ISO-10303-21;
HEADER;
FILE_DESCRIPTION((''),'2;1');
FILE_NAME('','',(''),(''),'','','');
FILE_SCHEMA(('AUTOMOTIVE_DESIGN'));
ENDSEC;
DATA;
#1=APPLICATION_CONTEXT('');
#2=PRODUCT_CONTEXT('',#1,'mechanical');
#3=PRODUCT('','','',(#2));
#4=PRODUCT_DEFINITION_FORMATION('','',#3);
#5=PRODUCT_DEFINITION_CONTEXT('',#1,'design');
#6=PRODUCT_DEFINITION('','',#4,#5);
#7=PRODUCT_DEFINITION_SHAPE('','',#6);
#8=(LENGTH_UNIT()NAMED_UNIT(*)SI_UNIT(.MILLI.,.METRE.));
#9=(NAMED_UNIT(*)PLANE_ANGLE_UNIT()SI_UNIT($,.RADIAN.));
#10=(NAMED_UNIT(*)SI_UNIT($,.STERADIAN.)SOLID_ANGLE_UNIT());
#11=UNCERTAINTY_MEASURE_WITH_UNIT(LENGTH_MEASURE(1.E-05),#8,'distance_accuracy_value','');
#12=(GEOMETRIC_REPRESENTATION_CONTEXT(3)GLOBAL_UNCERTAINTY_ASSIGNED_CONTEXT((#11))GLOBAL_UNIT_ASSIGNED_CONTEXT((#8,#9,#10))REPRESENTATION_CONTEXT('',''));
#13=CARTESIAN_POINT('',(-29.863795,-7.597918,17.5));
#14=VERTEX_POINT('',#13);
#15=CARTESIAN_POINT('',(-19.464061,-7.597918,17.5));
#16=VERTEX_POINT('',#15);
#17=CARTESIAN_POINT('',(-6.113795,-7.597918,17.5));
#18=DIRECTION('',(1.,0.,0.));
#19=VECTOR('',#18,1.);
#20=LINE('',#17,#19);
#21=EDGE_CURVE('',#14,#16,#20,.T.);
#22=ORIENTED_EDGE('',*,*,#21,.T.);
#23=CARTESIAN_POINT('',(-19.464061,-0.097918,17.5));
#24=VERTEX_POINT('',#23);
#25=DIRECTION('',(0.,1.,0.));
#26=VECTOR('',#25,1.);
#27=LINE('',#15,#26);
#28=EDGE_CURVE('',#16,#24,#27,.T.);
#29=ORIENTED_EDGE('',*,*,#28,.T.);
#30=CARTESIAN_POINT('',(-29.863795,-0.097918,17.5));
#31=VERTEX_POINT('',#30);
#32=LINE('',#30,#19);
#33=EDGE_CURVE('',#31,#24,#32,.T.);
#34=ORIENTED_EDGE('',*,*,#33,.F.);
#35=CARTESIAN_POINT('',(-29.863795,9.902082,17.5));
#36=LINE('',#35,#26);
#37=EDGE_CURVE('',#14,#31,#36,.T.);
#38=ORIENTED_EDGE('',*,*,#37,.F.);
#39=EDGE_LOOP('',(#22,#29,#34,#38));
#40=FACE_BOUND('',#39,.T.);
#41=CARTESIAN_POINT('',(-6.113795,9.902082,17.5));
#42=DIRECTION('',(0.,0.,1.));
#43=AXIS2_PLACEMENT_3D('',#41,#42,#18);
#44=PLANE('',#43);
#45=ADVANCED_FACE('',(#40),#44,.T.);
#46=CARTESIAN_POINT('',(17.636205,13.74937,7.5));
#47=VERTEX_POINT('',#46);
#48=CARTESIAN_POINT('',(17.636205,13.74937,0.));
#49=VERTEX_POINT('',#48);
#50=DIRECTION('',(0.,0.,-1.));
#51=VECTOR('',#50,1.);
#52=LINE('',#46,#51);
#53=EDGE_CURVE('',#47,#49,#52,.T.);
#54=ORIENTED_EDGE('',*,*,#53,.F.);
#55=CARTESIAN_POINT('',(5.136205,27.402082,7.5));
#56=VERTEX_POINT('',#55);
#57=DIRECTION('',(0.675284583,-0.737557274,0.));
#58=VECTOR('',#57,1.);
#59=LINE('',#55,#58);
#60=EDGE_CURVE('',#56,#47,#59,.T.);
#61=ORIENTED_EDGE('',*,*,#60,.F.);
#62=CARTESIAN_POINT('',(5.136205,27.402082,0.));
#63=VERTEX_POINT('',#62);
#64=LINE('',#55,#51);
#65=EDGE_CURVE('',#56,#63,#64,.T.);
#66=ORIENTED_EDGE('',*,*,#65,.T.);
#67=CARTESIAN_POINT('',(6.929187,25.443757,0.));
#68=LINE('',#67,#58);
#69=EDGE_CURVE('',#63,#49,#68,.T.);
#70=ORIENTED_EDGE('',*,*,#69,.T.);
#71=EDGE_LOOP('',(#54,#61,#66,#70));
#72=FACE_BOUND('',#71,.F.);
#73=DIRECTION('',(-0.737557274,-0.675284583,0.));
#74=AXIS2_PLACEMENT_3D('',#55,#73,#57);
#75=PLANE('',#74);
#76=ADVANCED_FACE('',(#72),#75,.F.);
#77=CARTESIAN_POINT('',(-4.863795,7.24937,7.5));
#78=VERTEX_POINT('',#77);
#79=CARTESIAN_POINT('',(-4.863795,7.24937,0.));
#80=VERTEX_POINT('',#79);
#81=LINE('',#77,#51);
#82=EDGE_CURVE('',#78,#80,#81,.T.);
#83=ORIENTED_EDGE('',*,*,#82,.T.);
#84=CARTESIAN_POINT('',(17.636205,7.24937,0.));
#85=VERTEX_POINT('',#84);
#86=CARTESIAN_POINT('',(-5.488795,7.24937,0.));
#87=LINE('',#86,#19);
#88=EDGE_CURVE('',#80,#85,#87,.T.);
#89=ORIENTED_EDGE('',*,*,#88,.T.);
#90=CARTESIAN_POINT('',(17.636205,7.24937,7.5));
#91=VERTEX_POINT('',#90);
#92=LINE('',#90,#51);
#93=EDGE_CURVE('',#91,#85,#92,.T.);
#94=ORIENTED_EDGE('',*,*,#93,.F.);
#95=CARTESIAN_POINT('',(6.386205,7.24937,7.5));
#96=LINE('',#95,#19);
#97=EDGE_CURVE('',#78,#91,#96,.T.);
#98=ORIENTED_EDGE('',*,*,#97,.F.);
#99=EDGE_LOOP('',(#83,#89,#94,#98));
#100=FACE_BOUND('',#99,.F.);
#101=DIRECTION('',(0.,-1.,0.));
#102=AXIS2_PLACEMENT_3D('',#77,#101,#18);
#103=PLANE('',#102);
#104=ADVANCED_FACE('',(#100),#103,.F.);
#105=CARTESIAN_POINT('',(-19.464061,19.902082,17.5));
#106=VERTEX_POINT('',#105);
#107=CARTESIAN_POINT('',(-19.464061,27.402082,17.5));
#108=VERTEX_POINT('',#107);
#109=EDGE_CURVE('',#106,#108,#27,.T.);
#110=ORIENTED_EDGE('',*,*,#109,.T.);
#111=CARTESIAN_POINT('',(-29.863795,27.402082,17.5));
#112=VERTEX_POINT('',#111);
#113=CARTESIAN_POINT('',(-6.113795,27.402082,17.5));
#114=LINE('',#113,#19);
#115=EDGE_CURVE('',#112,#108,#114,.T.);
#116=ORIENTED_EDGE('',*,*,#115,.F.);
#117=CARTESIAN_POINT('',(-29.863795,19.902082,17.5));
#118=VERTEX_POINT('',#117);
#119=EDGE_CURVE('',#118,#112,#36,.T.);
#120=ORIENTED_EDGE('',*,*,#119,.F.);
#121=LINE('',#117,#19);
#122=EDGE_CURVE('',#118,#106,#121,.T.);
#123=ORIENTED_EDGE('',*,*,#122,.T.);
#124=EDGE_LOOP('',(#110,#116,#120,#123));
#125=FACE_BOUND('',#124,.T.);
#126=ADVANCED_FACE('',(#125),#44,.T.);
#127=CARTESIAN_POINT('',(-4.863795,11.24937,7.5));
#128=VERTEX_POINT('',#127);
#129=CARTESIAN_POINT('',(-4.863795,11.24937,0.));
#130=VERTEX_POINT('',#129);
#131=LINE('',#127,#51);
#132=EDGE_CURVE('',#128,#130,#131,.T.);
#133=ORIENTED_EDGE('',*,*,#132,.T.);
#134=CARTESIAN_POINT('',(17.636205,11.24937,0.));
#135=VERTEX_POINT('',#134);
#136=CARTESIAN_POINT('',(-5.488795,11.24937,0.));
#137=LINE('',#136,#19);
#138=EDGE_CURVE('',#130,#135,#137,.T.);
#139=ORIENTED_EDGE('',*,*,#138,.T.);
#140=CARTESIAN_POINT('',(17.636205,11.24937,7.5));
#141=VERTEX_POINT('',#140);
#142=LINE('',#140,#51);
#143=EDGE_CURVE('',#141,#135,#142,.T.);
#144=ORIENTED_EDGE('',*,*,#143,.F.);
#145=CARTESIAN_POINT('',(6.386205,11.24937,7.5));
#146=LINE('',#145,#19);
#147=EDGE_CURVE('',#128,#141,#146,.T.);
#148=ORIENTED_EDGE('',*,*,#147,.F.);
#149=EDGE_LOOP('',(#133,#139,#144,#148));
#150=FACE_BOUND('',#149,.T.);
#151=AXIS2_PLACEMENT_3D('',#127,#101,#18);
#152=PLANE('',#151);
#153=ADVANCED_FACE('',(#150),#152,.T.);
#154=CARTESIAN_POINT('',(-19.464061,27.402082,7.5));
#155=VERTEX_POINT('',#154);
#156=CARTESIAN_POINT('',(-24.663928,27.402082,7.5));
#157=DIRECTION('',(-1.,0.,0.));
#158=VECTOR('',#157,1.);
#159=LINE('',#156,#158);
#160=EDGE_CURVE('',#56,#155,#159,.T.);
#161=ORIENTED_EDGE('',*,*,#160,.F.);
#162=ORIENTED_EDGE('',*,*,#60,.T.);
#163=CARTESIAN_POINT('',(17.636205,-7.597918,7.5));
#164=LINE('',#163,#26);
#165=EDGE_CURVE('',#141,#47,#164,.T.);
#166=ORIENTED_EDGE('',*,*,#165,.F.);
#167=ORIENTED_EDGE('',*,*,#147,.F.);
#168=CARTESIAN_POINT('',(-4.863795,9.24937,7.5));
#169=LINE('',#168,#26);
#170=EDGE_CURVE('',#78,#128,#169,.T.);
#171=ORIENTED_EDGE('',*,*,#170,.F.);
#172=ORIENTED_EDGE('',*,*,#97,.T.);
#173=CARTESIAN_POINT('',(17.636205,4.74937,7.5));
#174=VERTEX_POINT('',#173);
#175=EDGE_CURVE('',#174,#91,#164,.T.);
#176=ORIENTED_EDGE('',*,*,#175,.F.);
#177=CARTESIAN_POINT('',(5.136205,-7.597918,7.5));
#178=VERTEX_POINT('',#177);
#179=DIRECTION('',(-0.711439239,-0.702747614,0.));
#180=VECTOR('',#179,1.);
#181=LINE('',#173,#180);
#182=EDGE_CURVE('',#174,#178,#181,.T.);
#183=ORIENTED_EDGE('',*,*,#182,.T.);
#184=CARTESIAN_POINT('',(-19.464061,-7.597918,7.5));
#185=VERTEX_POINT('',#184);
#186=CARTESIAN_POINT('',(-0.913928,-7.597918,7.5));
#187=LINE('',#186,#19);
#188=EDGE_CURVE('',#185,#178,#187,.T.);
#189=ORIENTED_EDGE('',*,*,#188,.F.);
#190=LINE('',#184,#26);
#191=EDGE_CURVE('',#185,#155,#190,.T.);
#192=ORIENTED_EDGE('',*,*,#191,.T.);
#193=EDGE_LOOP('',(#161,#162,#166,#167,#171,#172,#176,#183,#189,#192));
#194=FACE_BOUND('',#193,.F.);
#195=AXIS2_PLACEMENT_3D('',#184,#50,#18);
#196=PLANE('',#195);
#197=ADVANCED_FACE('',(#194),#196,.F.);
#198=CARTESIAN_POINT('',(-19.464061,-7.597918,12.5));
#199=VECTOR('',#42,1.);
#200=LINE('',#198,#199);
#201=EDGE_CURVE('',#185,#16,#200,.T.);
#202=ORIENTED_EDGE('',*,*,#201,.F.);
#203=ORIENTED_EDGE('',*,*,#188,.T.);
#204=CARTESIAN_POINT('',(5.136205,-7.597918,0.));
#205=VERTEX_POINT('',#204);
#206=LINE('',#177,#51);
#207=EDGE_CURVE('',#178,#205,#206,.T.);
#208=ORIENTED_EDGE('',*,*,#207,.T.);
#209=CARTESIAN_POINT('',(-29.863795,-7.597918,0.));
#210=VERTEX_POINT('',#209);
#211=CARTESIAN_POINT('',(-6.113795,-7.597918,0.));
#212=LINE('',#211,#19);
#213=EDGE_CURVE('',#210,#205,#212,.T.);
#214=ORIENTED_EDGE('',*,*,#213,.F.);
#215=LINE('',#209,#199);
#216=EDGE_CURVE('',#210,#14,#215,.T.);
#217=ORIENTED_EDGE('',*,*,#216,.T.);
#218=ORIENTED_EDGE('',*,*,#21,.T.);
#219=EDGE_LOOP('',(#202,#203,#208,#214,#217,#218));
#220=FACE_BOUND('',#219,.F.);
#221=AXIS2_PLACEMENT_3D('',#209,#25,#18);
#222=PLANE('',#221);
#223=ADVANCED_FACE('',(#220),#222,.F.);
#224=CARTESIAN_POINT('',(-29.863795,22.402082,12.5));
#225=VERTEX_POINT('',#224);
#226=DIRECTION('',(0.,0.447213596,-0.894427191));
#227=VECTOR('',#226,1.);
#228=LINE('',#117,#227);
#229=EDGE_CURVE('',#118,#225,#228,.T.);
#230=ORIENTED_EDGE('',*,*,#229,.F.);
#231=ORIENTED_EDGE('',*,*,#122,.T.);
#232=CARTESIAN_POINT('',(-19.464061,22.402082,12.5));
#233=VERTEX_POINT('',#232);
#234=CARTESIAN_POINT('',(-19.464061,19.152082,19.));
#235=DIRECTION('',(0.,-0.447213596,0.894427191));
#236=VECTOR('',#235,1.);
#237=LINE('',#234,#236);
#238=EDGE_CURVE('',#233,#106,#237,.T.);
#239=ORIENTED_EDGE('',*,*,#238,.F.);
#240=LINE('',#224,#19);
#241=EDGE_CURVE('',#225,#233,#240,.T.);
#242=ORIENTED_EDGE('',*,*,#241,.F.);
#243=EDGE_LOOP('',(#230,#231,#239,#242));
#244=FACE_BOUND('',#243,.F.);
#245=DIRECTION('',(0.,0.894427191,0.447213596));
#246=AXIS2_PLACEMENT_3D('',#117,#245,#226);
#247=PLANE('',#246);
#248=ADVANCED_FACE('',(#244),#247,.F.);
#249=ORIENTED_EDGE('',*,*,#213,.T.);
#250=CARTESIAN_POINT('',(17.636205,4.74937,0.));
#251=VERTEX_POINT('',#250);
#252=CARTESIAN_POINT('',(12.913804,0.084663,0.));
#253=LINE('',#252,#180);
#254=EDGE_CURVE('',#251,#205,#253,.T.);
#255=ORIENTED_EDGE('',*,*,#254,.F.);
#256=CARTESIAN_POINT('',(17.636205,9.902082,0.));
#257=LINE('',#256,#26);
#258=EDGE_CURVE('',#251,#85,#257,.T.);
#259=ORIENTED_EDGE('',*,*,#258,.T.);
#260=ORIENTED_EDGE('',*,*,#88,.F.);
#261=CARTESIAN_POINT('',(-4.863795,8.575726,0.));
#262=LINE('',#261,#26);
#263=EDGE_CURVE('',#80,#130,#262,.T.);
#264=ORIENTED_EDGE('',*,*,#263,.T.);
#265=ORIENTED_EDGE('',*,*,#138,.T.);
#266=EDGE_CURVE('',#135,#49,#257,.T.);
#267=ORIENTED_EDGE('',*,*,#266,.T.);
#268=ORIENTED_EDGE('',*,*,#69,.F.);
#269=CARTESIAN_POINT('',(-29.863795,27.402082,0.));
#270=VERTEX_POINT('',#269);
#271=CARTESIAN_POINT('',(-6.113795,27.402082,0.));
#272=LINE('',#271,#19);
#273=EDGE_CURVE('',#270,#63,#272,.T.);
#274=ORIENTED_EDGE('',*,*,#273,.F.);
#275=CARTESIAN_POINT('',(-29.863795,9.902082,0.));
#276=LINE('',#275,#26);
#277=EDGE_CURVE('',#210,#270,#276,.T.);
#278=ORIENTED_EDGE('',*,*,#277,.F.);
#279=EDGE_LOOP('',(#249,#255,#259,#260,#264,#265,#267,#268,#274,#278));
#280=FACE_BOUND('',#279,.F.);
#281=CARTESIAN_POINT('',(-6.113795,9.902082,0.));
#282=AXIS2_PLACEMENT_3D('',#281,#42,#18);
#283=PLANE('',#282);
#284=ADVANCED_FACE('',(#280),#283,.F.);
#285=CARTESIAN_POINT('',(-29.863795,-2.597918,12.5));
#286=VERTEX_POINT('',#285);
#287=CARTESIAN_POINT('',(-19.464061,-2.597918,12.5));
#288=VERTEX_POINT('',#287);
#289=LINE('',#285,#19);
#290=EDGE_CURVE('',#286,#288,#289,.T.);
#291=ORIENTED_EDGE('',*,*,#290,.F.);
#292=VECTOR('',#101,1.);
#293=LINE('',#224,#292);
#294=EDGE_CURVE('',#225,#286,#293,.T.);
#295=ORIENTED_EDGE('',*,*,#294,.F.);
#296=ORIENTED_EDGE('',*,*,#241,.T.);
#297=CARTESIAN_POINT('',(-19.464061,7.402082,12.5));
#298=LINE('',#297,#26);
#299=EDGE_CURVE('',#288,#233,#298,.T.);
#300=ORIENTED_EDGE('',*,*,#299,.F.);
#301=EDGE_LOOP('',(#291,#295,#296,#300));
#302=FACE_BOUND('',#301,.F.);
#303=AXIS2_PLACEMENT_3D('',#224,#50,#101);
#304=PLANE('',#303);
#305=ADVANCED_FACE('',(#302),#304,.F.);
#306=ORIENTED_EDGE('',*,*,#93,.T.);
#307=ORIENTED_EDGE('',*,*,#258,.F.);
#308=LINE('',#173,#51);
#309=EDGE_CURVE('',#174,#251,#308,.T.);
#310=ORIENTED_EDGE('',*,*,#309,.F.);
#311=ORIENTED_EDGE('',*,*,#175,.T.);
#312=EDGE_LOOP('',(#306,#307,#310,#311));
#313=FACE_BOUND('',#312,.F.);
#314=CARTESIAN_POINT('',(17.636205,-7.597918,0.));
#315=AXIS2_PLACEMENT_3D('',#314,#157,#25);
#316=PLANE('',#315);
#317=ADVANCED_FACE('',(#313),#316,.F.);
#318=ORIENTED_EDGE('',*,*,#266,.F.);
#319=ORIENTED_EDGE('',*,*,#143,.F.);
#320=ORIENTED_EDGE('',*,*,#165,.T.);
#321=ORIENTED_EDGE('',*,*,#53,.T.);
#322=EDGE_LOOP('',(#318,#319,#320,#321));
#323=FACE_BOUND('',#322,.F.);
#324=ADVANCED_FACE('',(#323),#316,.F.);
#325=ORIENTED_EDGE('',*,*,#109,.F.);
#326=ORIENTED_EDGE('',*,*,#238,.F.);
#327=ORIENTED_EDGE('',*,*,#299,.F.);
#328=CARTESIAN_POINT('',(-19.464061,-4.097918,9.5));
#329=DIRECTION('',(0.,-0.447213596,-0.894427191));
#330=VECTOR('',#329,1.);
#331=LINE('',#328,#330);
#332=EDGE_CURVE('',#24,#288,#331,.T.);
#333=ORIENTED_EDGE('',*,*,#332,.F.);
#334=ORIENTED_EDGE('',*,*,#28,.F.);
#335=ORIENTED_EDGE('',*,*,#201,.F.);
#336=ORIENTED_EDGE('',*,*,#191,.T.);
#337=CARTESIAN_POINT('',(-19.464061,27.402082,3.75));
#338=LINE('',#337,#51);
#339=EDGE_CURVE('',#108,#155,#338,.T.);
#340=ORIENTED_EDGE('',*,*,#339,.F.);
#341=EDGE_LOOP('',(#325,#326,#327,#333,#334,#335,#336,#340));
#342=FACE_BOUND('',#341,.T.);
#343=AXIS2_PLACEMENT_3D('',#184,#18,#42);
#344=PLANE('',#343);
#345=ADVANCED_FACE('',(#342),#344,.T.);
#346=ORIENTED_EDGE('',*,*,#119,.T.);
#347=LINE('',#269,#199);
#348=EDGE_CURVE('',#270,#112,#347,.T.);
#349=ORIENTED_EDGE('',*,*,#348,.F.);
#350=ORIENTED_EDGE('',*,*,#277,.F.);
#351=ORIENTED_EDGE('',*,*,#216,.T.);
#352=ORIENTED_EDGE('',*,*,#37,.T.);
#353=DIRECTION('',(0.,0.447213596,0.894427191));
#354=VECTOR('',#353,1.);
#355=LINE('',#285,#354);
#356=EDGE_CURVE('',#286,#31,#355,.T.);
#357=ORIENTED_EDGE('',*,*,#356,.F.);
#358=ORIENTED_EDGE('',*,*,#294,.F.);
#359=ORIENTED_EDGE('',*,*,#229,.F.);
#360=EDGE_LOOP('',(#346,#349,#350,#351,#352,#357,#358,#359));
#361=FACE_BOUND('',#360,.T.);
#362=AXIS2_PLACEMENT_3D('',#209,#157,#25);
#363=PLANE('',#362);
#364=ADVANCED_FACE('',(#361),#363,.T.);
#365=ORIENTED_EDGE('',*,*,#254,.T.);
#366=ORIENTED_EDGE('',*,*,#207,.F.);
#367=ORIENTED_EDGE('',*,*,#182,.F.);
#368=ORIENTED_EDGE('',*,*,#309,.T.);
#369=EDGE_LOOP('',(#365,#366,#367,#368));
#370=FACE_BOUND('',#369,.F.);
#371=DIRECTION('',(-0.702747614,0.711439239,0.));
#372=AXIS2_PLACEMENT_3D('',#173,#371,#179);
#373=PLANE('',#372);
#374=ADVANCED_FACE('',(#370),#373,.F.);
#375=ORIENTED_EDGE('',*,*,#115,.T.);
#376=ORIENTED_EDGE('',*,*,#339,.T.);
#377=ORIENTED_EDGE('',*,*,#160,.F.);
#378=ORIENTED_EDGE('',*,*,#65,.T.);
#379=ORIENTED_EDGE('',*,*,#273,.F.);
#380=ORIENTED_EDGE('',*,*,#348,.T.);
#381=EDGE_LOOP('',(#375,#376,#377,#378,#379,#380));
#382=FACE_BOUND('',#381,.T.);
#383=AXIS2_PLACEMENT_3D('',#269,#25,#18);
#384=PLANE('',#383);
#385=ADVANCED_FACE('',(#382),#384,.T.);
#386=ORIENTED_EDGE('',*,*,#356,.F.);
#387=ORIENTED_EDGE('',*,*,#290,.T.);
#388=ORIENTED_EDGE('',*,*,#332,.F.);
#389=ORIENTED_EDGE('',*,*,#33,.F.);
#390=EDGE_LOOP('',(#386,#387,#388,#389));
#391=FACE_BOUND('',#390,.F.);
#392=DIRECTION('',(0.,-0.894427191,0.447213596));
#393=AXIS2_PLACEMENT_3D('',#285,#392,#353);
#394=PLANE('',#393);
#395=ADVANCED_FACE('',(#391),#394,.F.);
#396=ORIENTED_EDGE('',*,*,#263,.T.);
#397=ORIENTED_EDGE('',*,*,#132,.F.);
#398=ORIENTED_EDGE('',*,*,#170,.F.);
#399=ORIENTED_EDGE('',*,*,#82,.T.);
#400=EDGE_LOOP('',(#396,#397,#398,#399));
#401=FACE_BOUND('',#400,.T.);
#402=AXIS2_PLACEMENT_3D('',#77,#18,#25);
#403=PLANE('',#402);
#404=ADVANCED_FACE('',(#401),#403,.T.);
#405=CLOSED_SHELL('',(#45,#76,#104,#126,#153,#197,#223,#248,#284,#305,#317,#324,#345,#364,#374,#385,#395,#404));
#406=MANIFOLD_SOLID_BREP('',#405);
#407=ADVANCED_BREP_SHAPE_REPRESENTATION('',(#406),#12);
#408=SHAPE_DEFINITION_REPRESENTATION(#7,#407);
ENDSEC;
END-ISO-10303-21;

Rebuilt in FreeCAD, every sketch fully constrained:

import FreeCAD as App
import Part
import Sketcher
Q = App.Units.Quantity

doc = App.newDocument("Part")
body = doc.addObject("PartDesign::Body", "Body")

sketch1 = body.newObject("Sketcher::SketchObject", "Sketch")
sketch1.AttachmentSupport = (doc.getObject("XY_Plane"), [""])
sketch1.MapMode = "FlatFace"
sketch1.addGeometry([
    Part.LineSegment(App.Vector(-30, 27, 0), App.Vector(-30, -8, 0)),
    Part.LineSegment(App.Vector(-30, -8, 0), App.Vector(18, -8, 0)),
    Part.LineSegment(App.Vector(18, -8, 0), App.Vector(18, 27, 0)),
    Part.LineSegment(App.Vector(18, 27, 0), App.Vector(-30, 27, 0)),
], False)
sketch1.addConstraint([
    Sketcher.Constraint("Coincident", 0, 2, 1, 1),
    Sketcher.Constraint("Coincident", 1, 2, 2, 1),
    Sketcher.Constraint("Coincident", 2, 2, 3, 1),
    Sketcher.Constraint("Coincident", 3, 2, 0, 1),
    Sketcher.Constraint("Vertical", 0),
    Sketcher.Constraint("Horizontal", 1),
    Sketcher.Constraint("Vertical", 2),
    Sketcher.Constraint("Horizontal", 3),
    Sketcher.Constraint("DistanceY", 0, 2, 0, 1, Q("35 mm")),
    Sketcher.Constraint("DistanceX", 1, 1, 1, 2, Q("47.5 mm")),
    Sketcher.Constraint("DistanceY", -1, 1, 2, 2, Q("27.402082 mm")),
    Sketcher.Constraint("DistanceX", 0, 2, -1, 1, Q("29.863795 mm")),
])
pad1 = body.newObject("PartDesign::Pad", "Pad")
pad1.Profile = sketch1
pad1.Length = 17.5

sketch2 = body.newObject("Sketcher::SketchObject", "Sketch001")
sketch2.AttachmentSupport = (doc.getObject("XZ_Plane"), [""])
sketch2.MapMode = "FlatFace"
sketch2.AttachmentOffset = App.Placement(App.Vector(0, 0, 7.597918), App.Rotation())
sketch2.addGeometry([
    Part.LineSegment(App.Vector(-19, 18, 0), App.Vector(-19, 8, 0)),
    Part.LineSegment(App.Vector(-19, 8, 0), App.Vector(18, 8, 0)),
    Part.LineSegment(App.Vector(18, 8, 0), App.Vector(18, 18, 0)),
    Part.LineSegment(App.Vector(18, 18, 0), App.Vector(-19, 18, 0)),
], False)
sketch2.addConstraint([
    Sketcher.Constraint("Coincident", 0, 2, 1, 1),
    Sketcher.Constraint("Coincident", 1, 2, 2, 1),
    Sketcher.Constraint("Coincident", 2, 2, 3, 1),
    Sketcher.Constraint("Coincident", 3, 2, 0, 1),
    Sketcher.Constraint("Vertical", 0),
    Sketcher.Constraint("Horizontal", 1),
    Sketcher.Constraint("Vertical", 2),
    Sketcher.Constraint("Horizontal", 3),
    Sketcher.Constraint("DistanceY", 0, 2, 0, 1, Q("10 mm")),
    Sketcher.Constraint("DistanceY", -1, 1, 0, 2, Q("7.5 mm")),
    Sketcher.Constraint("DistanceX", 1, 1, 1, 2, Q("37.100266 mm")),
    Sketcher.Constraint("DistanceX", 0, 2, -1, 1, Q("19.464061 mm")),
])
pocket1 = body.newObject("PartDesign::Pocket", "Pocket")
pocket1.Profile = sketch2
pocket1.Type = "ThroughAll"

sketch3 = body.newObject("Sketcher::SketchObject", "Sketch002")
sketch3.AttachmentSupport = (doc.getObject("YZ_Plane"), [""])
sketch3.MapMode = "FlatFace"
sketch3.AttachmentOffset = App.Placement(App.Vector(0, 0, -29.863795), App.Rotation())
sketch3.addGeometry([
    Part.LineSegment(App.Vector(20, 18, 0), App.Vector(22, 12, 0)),
    Part.LineSegment(App.Vector(22, 12, 0), App.Vector(-3, 12, 0)),
    Part.LineSegment(App.Vector(-3, 12, 0), App.Vector(0, 18, 0)),
    Part.LineSegment(App.Vector(0, 18, 0), App.Vector(20, 18, 0)),
], False)
sketch3.addConstraint([
    Sketcher.Constraint("Coincident", 0, 2, 1, 1),
    Sketcher.Constraint("Coincident", 1, 2, 2, 1),
    Sketcher.Constraint("Coincident", 2, 2, 3, 1),
    Sketcher.Constraint("Coincident", 3, 2, 0, 1),
    Sketcher.Constraint("Horizontal", 1),
    Sketcher.Constraint("Horizontal", 3),
    Sketcher.Constraint("Equal", 0, 2),
    Sketcher.Constraint("DistanceX", 1, 2, 1, 1, Q("25 mm")),
    Sketcher.Constraint("DistanceX", 3, 1, 3, 2, Q("20 mm")),
    Sketcher.Constraint("DistanceY", 1, 2, 2, 2, Q("5 mm")),
    Sketcher.Constraint("DistanceY", -1, 1, 0, 2, Q("12.5 mm")),
    Sketcher.Constraint("DistanceX", -1, 1, 0, 2, Q("22.402082 mm")),
])
pocket2 = body.newObject("PartDesign::Pocket", "Pocket001")
pocket2.Profile = sketch3
pocket2.Type = "ThroughAll"
pocket2.Reversed = True

sketch4 = body.newObject("Sketcher::SketchObject", "Sketch003")
sketch4.AttachmentSupport = (doc.getObject("XY_Plane"), [""])
sketch4.MapMode = "FlatFace"
sketch4.AttachmentOffset = App.Placement(App.Vector(0, 0, 7.5), App.Rotation())
sketch4.addGeometry([
    Part.LineSegment(App.Vector(5.1, -7.6, 0), App.Vector(17.6, -7.6, 0)),
    Part.LineSegment(App.Vector(17.6, -7.6, 0), App.Vector(17.6, 4.7, 0)),
    Part.LineSegment(App.Vector(17.6, 4.7, 0), App.Vector(5.1, -7.6, 0)),
    Part.LineSegment(App.Vector(17.6, 27.4, 0), App.Vector(5.1, 27.4, 0)),
    Part.LineSegment(App.Vector(5.1, 27.4, 0), App.Vector(17.6, 13.7, 0)),
    Part.LineSegment(App.Vector(17.6, 13.7, 0), App.Vector(17.6, 27.4, 0)),
    Part.LineSegment(App.Vector(-4.9, 11.2, 0), App.Vector(-4.9, 7.2, 0)),
    Part.LineSegment(App.Vector(-4.9, 7.2, 0), App.Vector(17.6, 7.2, 0)),
    Part.LineSegment(App.Vector(17.6, 7.2, 0), App.Vector(17.6, 11.2, 0)),
    Part.LineSegment(App.Vector(17.6, 11.2, 0), App.Vector(-4.9, 11.2, 0)),
], False)
sketch4.addConstraint([
    Sketcher.Constraint("Coincident", 0, 2, 1, 1),
    Sketcher.Constraint("Coincident", 1, 2, 2, 1),
    Sketcher.Constraint("Coincident", 2, 2, 0, 1),
    Sketcher.Constraint("Coincident", 3, 2, 4, 1),
    Sketcher.Constraint("Coincident", 4, 2, 5, 1),
    Sketcher.Constraint("Coincident", 5, 2, 3, 1),
    Sketcher.Constraint("Coincident", 6, 2, 7, 1),
    Sketcher.Constraint("Coincident", 7, 2, 8, 1),
    Sketcher.Constraint("Coincident", 8, 2, 9, 1),
    Sketcher.Constraint("Coincident", 9, 2, 6, 1),
    Sketcher.Constraint("Horizontal", 0),
    Sketcher.Constraint("Vertical", 1),
    Sketcher.Constraint("Horizontal", 3),
    Sketcher.Constraint("Vertical", 5),
    Sketcher.Constraint("Vertical", 6),
    Sketcher.Constraint("Horizontal", 7),
    Sketcher.Constraint("Vertical", 8),
    Sketcher.Constraint("Horizontal", 9),
    Sketcher.Constraint("Vertical", 2, 2, 3, 2),
    Sketcher.Constraint("Vertical", 1, 2, 4, 2),
    Sketcher.Constraint("Vertical", 5, 2, 7, 2),
    Sketcher.Constraint("DistanceY", 6, 2, 6, 1, Q("4 mm")),
    Sketcher.Constraint("DistanceX", 0, 1, 0, 2, Q("12.5 mm")),
    Sketcher.Constraint("DistanceX", 7, 1, 7, 2, Q("22.5 mm")),
    Sketcher.Constraint("DistanceY", 2, 2, 3, 2, Q("35 mm")),
    Sketcher.Constraint("DistanceY", 1, 2, 4, 2, Q("9 mm")),
    Sketcher.Constraint("DistanceY", 1, 2, 6, 2, Q("2.5 mm")),
    Sketcher.Constraint("DistanceY", 5, 1, 5, 2, Q("13.652712 mm")),
    Sketcher.Constraint("DistanceY", -1, 1, 1, 2, Q("4.74937 mm")),
    Sketcher.Constraint("DistanceX", -1, 1, 0, 2, Q("17.636205 mm")),
])
pocket3 = body.newObject("PartDesign::Pocket", "Pocket002")
pocket3.Profile = sketch4
pocket3.Type = "ThroughAll"

doc.recompute()
